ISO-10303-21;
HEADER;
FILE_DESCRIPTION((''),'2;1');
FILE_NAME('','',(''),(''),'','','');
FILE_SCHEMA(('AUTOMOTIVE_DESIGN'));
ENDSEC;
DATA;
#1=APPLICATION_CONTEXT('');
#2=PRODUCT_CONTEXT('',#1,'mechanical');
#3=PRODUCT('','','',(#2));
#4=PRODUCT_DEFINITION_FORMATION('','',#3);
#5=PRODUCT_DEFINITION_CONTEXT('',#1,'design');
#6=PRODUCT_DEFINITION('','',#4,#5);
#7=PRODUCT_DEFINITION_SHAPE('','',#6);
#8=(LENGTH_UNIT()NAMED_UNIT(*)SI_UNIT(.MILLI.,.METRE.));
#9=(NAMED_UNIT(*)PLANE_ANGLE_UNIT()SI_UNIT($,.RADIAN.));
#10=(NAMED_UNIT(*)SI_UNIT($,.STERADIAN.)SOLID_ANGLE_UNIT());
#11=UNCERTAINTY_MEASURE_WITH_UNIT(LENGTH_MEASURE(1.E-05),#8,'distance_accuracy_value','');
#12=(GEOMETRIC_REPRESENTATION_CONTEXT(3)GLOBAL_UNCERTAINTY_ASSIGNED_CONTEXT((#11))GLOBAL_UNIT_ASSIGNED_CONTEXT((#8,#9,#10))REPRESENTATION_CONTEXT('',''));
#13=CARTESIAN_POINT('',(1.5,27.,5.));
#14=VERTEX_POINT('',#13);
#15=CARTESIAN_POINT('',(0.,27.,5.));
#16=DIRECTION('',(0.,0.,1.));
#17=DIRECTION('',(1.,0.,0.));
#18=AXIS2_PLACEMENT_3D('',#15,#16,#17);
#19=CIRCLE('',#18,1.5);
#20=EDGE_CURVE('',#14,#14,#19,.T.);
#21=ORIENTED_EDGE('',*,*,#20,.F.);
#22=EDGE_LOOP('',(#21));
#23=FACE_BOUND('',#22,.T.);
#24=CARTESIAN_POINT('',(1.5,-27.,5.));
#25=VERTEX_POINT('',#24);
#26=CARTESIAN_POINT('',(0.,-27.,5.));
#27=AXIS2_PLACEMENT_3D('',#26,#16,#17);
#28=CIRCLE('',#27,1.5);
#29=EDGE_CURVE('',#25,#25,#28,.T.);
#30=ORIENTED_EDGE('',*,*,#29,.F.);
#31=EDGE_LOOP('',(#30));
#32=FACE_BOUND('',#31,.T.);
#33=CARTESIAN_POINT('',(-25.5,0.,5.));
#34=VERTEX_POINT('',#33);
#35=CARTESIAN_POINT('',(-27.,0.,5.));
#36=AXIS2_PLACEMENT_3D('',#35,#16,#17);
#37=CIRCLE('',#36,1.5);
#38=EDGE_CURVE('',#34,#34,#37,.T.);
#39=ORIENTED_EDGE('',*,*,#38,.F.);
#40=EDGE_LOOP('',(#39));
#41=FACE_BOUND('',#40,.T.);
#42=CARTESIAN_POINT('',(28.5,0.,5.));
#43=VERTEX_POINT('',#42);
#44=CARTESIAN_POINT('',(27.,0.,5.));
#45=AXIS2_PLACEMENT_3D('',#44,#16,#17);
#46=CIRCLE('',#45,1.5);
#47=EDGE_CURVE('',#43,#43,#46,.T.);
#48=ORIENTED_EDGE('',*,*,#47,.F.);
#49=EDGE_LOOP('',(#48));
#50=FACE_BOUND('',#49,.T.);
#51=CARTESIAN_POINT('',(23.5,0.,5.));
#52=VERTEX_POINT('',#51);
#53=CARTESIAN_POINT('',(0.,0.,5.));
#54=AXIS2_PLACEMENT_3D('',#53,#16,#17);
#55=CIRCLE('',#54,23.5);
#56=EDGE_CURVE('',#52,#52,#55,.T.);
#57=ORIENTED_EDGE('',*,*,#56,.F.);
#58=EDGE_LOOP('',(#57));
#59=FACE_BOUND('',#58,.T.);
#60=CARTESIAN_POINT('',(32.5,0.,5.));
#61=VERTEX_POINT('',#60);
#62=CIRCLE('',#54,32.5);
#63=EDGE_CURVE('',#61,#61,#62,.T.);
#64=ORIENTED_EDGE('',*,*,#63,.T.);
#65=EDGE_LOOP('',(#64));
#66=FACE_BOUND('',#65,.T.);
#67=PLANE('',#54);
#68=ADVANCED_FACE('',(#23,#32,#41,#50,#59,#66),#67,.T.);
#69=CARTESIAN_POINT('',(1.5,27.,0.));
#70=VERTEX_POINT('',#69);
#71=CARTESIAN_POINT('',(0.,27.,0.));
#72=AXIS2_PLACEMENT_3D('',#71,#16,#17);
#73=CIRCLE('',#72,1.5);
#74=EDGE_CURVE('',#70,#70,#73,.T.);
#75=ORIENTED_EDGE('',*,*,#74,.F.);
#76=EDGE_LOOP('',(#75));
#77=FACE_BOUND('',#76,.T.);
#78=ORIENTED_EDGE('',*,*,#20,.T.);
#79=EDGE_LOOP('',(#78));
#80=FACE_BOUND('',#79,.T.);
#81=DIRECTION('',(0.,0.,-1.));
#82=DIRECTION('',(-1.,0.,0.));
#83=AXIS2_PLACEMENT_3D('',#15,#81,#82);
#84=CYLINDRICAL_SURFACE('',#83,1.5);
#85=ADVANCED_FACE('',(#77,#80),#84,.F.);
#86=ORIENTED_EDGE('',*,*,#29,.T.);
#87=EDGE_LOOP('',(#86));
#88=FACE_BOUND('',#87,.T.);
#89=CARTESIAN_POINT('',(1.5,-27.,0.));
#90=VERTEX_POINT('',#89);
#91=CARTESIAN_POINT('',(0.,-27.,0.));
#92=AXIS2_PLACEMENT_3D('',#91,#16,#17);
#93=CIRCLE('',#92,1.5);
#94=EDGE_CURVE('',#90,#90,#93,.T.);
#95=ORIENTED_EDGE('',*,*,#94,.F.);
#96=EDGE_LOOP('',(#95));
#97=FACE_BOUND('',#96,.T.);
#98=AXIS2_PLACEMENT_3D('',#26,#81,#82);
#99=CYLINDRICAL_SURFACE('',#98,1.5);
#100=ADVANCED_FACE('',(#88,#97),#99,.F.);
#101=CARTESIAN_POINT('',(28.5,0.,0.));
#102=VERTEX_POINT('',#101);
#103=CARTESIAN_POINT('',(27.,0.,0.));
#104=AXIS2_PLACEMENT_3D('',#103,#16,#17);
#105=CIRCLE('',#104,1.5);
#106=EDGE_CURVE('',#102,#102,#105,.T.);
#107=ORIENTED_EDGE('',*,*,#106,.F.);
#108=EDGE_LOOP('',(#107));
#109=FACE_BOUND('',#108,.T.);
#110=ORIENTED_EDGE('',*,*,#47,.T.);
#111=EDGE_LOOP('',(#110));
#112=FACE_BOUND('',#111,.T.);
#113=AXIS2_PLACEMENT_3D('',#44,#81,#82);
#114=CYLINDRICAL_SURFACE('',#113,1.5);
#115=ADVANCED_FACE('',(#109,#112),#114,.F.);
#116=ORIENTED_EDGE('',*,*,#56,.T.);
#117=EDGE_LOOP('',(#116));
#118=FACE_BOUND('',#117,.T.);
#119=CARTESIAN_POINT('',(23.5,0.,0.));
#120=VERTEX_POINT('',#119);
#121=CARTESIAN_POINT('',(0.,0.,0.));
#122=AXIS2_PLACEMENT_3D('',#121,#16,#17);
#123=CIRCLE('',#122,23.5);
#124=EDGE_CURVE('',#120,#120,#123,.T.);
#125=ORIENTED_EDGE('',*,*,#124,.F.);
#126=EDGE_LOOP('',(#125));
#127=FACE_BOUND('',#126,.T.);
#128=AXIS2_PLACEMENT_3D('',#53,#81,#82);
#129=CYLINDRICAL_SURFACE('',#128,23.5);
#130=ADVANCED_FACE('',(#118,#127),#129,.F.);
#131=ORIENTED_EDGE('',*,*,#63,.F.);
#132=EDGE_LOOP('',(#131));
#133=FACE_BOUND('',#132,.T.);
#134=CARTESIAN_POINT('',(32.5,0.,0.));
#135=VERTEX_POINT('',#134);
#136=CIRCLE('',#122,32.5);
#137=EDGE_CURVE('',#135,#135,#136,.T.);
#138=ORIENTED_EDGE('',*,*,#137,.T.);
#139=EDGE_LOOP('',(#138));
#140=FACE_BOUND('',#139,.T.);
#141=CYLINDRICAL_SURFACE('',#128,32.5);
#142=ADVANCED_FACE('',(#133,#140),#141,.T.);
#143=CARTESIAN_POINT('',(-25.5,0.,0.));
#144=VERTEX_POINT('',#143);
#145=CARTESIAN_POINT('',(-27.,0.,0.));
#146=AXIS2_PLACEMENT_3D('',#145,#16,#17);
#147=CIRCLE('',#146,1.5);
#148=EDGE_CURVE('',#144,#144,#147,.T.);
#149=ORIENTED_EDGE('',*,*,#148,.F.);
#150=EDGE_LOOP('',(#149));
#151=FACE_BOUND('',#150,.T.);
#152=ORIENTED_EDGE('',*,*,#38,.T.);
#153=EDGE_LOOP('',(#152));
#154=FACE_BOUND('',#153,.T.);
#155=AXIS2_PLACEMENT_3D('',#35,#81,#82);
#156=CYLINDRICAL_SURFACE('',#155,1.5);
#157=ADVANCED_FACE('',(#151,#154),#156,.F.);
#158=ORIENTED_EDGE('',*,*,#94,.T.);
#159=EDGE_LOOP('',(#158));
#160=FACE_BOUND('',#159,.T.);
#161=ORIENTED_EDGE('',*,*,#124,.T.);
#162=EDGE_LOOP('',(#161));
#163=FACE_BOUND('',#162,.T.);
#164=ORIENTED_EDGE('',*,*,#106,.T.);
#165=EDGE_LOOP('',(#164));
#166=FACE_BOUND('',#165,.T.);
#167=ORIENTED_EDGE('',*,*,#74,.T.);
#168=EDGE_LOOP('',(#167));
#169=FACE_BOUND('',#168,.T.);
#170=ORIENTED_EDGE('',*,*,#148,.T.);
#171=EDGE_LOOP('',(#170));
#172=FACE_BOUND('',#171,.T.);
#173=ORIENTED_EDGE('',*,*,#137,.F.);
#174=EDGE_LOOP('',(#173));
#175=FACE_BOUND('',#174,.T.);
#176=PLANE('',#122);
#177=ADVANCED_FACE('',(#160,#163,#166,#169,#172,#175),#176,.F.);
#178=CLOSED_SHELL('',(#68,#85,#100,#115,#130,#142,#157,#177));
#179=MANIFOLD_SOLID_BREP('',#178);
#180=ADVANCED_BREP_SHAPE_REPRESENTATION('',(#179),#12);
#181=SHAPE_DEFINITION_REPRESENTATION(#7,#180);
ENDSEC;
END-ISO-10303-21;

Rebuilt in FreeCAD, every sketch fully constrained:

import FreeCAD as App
import Part
import Sketcher
from FreeCAD import Vector

doc = App.newDocument("Part")
body = doc.addObject("PartDesign::Body", "Body")

sketch1 = doc.addObject("Sketcher::SketchObject", "Sketch")
body.addObject(sketch1)
sketch1.AttachmentSupport = (doc.XY_Plane, [""])
sketch1.MapMode = "FlatFace"
sketch1.addGeometry([
    Part.Circle(Vector(0, 0, 0), Vector(0, 0, 1), 32.5),
    Part.Circle(Vector(0, -27, 0), Vector(0, 0, 1), 1.5),
    Part.Circle(Vector(-27, 0, 0), Vector(0, 0, 1), 1.5),
    Part.Circle(Vector(0, 0, 0), Vector(0, 0, 1), 23.5),
    Part.Circle(Vector(27, 0, 0), Vector(0, 0, 1), 1.5),
    Part.Circle(Vector(0, 27, 0), Vector(0, 0, 1), 1.5),
], False)
sketch1.addConstraint([
    Sketcher.Constraint("Coincident", 0, 3, -1, 1),
    Sketcher.Constraint("Coincident", 3, 3, -1, 1),
    Sketcher.Constraint("Equal", 1, 2),
    Sketcher.Constraint("Equal", 2, 4),
    Sketcher.Constraint("Equal", 4, 5),
    Sketcher.Constraint("Symmetric", 2, 3, 4, 3, -1, 1),
    Sketcher.Constraint("Symmetric", 1, 3, 5, 3, -1, 1),
    Sketcher.Constraint("PointOnObject", 1, 3, -2),
    Sketcher.Constraint("PointOnObject", 2, 3, -1),
    Sketcher.Constraint("Diameter", 0, 65.0),
    Sketcher.Constraint("Diameter", 1, 3.0),
    Sketcher.Constraint("Diameter", 3, 47.0),
    Sketcher.Constraint("DistanceY", 1, 3, -1, 1, 27.0),
    Sketcher.Constraint("DistanceX", 2, 3, -1, 1, 27.0),
])
pad1 = doc.addObject("PartDesign::Pad", "Pad")
body.addObject(pad1)
pad1.Profile = sketch1
pad1.Length = 5

doc.recompute()
